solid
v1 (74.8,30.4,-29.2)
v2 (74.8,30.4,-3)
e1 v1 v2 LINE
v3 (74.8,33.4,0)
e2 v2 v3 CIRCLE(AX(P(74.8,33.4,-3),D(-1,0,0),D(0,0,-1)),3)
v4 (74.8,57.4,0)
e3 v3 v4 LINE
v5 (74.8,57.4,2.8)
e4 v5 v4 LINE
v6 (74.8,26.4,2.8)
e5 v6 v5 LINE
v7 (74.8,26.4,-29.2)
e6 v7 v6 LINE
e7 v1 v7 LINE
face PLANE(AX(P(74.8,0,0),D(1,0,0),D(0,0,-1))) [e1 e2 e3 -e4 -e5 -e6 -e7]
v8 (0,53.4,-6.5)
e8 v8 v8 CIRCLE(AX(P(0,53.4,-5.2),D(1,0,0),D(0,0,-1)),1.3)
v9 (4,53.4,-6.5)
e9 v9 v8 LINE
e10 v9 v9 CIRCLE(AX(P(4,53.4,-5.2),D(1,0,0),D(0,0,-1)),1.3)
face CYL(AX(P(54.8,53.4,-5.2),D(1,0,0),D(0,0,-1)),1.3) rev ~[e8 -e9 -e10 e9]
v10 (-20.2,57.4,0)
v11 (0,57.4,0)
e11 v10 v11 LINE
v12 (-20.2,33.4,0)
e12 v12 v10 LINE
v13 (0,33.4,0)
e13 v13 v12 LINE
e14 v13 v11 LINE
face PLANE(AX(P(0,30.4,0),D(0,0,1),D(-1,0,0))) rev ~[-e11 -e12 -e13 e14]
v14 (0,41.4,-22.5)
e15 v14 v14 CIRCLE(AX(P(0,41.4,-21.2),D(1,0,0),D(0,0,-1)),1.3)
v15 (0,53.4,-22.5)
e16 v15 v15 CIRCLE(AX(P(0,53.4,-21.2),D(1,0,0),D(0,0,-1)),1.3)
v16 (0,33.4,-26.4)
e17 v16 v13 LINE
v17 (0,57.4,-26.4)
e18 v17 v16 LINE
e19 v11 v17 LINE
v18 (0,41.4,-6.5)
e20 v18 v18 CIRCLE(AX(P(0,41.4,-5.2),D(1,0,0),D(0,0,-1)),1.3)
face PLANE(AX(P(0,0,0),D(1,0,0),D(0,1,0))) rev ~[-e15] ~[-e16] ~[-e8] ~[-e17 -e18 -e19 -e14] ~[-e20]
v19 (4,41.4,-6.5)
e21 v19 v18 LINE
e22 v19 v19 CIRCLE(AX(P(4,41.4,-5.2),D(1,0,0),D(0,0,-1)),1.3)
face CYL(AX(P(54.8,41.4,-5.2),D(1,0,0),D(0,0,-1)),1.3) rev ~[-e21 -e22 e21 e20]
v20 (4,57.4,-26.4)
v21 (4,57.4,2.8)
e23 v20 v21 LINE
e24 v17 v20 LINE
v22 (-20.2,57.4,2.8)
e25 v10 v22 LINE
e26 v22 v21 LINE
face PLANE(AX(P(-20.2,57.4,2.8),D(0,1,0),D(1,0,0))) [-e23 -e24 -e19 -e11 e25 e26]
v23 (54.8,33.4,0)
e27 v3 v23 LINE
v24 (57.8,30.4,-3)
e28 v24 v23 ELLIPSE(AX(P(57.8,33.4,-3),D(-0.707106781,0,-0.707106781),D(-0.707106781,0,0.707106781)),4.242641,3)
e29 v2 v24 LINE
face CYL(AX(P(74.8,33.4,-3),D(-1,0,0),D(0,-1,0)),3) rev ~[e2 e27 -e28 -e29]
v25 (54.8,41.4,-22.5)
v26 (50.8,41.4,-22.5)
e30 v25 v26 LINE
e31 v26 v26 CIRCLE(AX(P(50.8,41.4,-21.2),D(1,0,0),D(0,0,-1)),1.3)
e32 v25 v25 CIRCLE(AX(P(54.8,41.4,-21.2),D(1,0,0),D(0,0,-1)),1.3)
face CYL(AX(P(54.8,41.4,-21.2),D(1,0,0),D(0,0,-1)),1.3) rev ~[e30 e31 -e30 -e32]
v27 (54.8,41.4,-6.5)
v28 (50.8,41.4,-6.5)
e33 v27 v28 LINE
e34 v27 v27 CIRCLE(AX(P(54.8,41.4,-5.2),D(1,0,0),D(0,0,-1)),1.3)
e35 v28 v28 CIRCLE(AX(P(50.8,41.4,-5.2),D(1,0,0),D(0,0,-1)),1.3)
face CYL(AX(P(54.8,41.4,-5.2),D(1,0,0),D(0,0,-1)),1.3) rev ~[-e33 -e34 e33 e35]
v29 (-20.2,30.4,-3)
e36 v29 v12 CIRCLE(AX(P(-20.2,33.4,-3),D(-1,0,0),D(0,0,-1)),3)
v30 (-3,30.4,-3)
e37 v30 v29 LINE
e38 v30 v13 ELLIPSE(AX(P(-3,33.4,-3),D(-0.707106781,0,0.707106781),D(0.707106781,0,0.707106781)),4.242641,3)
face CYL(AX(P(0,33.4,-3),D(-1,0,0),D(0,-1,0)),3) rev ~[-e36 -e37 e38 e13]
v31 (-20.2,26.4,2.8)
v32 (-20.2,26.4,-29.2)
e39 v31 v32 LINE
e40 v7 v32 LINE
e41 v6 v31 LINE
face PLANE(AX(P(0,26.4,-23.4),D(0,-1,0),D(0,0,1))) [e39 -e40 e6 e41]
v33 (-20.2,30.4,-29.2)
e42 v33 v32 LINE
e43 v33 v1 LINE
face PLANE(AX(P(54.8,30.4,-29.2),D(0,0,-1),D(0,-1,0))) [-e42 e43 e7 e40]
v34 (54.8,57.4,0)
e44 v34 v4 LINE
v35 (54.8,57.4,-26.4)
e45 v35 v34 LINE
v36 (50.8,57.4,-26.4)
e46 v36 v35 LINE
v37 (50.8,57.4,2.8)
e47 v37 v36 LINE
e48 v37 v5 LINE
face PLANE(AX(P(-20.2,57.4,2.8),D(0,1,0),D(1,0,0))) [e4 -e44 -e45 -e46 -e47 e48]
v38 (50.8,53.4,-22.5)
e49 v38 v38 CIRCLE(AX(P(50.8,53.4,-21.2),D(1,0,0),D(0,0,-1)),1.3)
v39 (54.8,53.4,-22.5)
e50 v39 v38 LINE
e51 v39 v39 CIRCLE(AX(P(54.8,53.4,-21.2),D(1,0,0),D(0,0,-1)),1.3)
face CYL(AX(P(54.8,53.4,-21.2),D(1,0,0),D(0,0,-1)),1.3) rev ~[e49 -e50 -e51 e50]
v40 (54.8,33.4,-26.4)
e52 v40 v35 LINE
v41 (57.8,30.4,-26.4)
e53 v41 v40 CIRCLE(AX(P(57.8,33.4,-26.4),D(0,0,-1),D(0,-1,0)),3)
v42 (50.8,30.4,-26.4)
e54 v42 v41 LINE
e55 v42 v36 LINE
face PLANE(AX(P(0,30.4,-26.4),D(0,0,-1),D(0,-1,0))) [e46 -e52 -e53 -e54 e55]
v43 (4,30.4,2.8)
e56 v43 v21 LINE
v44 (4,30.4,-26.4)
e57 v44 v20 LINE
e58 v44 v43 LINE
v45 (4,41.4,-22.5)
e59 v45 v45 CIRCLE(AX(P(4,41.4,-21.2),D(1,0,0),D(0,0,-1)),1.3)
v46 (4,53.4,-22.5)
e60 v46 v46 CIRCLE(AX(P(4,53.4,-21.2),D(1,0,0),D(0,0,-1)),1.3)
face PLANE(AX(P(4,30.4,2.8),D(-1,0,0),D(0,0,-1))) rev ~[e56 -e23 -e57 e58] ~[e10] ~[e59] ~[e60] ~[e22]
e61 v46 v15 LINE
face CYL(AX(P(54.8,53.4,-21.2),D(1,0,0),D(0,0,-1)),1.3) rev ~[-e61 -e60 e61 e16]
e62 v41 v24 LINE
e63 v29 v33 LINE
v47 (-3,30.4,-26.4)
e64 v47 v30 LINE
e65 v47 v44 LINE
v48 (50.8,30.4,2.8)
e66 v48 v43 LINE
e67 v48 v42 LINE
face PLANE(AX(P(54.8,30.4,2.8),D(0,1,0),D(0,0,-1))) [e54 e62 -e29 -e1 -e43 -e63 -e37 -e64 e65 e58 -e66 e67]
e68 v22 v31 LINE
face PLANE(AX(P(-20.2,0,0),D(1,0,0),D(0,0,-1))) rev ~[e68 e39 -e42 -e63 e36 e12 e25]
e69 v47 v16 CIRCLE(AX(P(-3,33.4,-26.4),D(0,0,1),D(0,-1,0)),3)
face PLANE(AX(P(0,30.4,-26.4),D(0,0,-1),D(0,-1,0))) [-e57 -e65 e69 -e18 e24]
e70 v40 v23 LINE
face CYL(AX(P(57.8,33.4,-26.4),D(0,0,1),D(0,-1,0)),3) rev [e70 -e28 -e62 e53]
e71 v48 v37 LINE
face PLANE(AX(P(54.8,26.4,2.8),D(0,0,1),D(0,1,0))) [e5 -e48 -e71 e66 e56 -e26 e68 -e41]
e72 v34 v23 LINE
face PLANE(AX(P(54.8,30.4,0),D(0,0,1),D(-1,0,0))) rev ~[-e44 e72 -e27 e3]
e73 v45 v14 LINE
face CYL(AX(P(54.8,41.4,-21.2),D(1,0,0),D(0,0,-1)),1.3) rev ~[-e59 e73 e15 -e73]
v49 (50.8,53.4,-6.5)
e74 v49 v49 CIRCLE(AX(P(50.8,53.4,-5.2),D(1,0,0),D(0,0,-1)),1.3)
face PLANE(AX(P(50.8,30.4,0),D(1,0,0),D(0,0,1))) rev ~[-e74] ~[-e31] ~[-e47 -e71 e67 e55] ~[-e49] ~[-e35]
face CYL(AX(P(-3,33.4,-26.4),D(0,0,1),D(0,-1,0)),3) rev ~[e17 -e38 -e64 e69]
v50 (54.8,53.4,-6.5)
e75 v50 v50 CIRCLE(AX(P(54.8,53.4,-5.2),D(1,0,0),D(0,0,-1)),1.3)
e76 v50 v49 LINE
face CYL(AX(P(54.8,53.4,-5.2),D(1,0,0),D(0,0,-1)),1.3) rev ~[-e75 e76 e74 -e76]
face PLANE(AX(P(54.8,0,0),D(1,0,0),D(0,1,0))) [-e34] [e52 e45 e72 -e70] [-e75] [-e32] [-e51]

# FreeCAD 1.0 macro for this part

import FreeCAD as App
import Part
import Sketcher
from FreeCAD import Vector


def edges_at(feature, points):
    """Names of the edges that pass closest to the given points."""
    edges = feature.Shape.Edges
    near = lambda p: min(range(len(edges)), key=lambda i: edges[i].distToShape(Part.Vertex(*p))[0])
    return sorted({f"Edge{near(p) + 1}" for p in points})


def add_polygon(sketch, points):
    """Adds a closed chain of lines whose ends are joined by coincident constraints."""
    first, n = sketch.GeometryCount, len(points)
    for a, b in zip(points, points[1:] + points[:1]):
        sketch.addGeometry(Part.LineSegment(App.Vector(*a, 0), App.Vector(*b, 0)), False)
    for i in range(n):
        sketch.addConstraint(Sketcher.Constraint("Coincident", first + i, 2, first + (i + 1) % n, 1))

doc = App.newDocument("Part")
body = doc.addObject("PartDesign::Body", "Body")

sketch1 = body.newObject("Sketcher::SketchObject", "Sketch")
sketch1.AttachmentSupport = (doc.getObject("YZ_Plane"), [""])
sketch1.MapMode = "FlatFace"
add_polygon(sketch1, [(6, -3), (26, -3), (26, -23), (6, -23), (6, -15), (0, -15), (0, -26), (30, -26), (30, 0), (0, 0), (0, -11), (6, -11)])
sketch1.addConstraint(Sketcher.Constraint("Horizontal", 0))
sketch1.addConstraint(Sketcher.Constraint("Vertical", 1))
sketch1.addConstraint(Sketcher.Constraint("Horizontal", 2))
sketch1.addConstraint(Sketcher.Constraint("Vertical", 3))
sketch1.addConstraint(Sketcher.Constraint("Horizontal", 4))
sketch1.addConstraint(Sketcher.Constraint("Vertical", 5))
sketch1.addConstraint(Sketcher.Constraint("Horizontal", 6))
sketch1.addConstraint(Sketcher.Constraint("Vertical", 7))
sketch1.addConstraint(Sketcher.Constraint("Horizontal", 8))
sketch1.addConstraint(Sketcher.Constraint("Vertical", 9))
sketch1.addConstraint(Sketcher.Constraint("Horizontal", 10))
sketch1.addConstraint(Sketcher.Constraint("Vertical", 11))
sketch1.addConstraint(Sketcher.Constraint("Coincident", 8, 2, -1, 1))
sketch1.addConstraint(Sketcher.Constraint("PointOnObject", 4, 2, -2))
sketch1.addConstraint(Sketcher.Constraint("Vertical", 3, 2, 10, 2))
sketch1.addConstraint(Sketcher.Constraint("Equal", 2, 1))
sketch1.addConstraint(Sketcher.Constraint("Equal", 5, 9))
sketch1.addConstraint(Sketcher.Constraint("Equal", 3, 11))
sketch1.addConstraint(Sketcher.Constraint("DistanceX", 4, 2, 4, 1, 6.0))
sketch1.addConstraint(Sketcher.Constraint("DistanceY", 3, 1, 3, 2, 8.0))
sketch1.addConstraint(Sketcher.Constraint("DistanceX", 0, 1, 0, 2, 20.4))
sketch1.addConstraint(Sketcher.Constraint("DistanceY", 0, 2, -1, 1, 3.0))
sketch1.addConstraint(Sketcher.Constraint("DistanceX", 1, 2, 6, 2, 4.0))
pad1 = body.newObject("PartDesign::Pad", "Pad")
pad1.Profile = sketch1
pad1.Length = 54.8

sketch2 = body.newObject("Sketcher::SketchObject", "Sketch001")
sketch2.AttachmentSupport = (doc.getObject("XZ_Plane"), [""])
sketch2.MapMode = "FlatFace"
sketch2.AttachmentOffset = App.Placement(Vector(0, 0, -30.4), App.Rotation())
add_polygon(sketch2, [(0, -26.4), (0, 0), (4, 0), (4, -26.4)])
add_polygon(sketch2, [(50.8, -26.4), (50.8, 0), (54.8, 0), (54.8, -26.4)])
sketch2.addConstraint(Sketcher.Constraint("Vertical", 0))
sketch2.addConstraint(Sketcher.Constraint("Horizontal", 1))
sketch2.addConstraint(Sketcher.Constraint("Vertical", 2))
sketch2.addConstraint(Sketcher.Constraint("Horizontal", 3))
sketch2.addConstraint(Sketcher.Constraint("Vertical", 4))
sketch2.addConstraint(Sketcher.Constraint("Horizontal", 5))
sketch2.addConstraint(Sketcher.Constraint("Vertical", 6))
sketch2.addConstraint(Sketcher.Constraint("Horizontal", 7))
sketch2.addConstraint(Sketcher.Constraint("Coincident", 0, 2, -1, 1))
sketch2.addConstraint(Sketcher.Constraint("PointOnObject", 4, 2, -1))
sketch2.addConstraint(Sketcher.Constraint("Horizontal", 3, 2, 6, 2))
sketch2.addConstraint(Sketcher.Constraint("Equal", 3, 5))
sketch2.addConstraint(Sketcher.Constraint("DistanceX", 1, 1, 1, 2, 4.0))
sketch2.addConstraint(Sketcher.Constraint("DistanceX", 1, 2, 4, 2, 46.8))
sketch2.addConstraint(Sketcher.Constraint("DistanceY", 0, 1, 0, 2, 26.4))
pad2 = body.newObject("PartDesign::Pad", "Pad001")
pad2.Profile = sketch2
pad2.Length = 27
pad2.Reversed = True

sketch3 = body.newObject("Sketcher::SketchObject", "Sketch002")
sketch3.AttachmentSupport = (doc.getObject("YZ_Plane"), [""])
sketch3.MapMode = "FlatFace"
sketch3.AttachmentOffset = App.Placement(Vector(0, 0, 54.8), App.Rotation())
sketch3.addGeometry(Part.Circle(Vector(41.4, -5.2, 0), Vector(0, 0, 1), 1.3), False)
sketch3.addGeometry(Part.Circle(Vector(53.4, -5.2, 0), Vector(0, 0, 1), 1.3), False)
sketch3.addGeometry(Part.Circle(Vector(53.4, -21.2, 0), Vector(0, 0, 1), 1.3), False)
sketch3.addGeometry(Part.Circle(Vector(41.4, -21.2, 0), Vector(0, 0, 1), 1.3), False)
sketch3.addConstraint(Sketcher.Constraint("Equal", 0, 1))
sketch3.addConstraint(Sketcher.Constraint("Equal", 1, 2))
sketch3.addConstraint(Sketcher.Constraint("Equal", 2, 3))
sketch3.addConstraint(Sketcher.Constraint("Horizontal", 0, 3, 1, 3))
sketch3.addConstraint(Sketcher.Constraint("Horizontal", 2, 3, 3, 3))
sketch3.addConstraint(Sketcher.Constraint("Vertical", 1, 3, 2, 3))
sketch3.addConstraint(Sketcher.Constraint("Vertical", 0, 3, 3, 3))
sketch3.addConstraint(Sketcher.Constraint("Diameter", 0, 2.6))
sketch3.addConstraint(Sketcher.Constraint("DistanceY", 2, 3, 1, 3, 16.0))
sketch3.addConstraint(Sketcher.Constraint("DistanceY", 0, 3, -1, 1, 5.2))
sketch3.addConstraint(Sketcher.Constraint("DistanceX", 0, 3, 1, 3, 12.0))
sketch3.addConstraint(Sketcher.Constraint("DistanceX", -1, 1, 0, 3, 41.4))
pocket1 = body.newObject("PartDesign::Pocket", "Pocket")
pocket1.Profile = sketch3
pocket1.Length = 100

sketch4 = body.newObject("Sketcher::SketchObject", "Sketch003")
sketch4.AttachmentSupport = (doc.getObject("YZ_Plane"), [""])
sketch4.MapMode = "FlatFace"
sketch4.AttachmentOffset = App.Placement(Vector(0, 0, 54.8), App.Rotation())
add_polygon(sketch4, [(26.4, 2.8), (26.4, -29.2), (30.4, -29.2), (30.4, 2.8)])
sketch4.addConstraint(Sketcher.Constraint("Vertical", 0))
sketch4.addConstraint(Sketcher.Constraint("Horizontal", 1))
sketch4.addConstraint(Sketcher.Constraint("Vertical", 2))
sketch4.addConstraint(Sketcher.Constraint("Horizontal", 3))
sketch4.addConstraint(Sketcher.Constraint("DistanceY", 0, 2, 0, 1, 32.0))
sketch4.addConstraint(Sketcher.Constraint("DistanceX", 1, 1, 1, 2, 4.0))
sketch4.addConstraint(Sketcher.Constraint("DistanceX", -1, 1, 0, 2, 26.4))
sketch4.addConstraint(Sketcher.Constraint("DistanceY", 0, 2, -1, 1, 29.2))
pad3 = body.newObject("PartDesign::Pad", "Pad002")
pad3.Profile = sketch4
pad3.Type = "TwoLengths"
pad3.Length = 20
pad3.Length2 = 75

sketch5 = body.newObject("Sketcher::SketchObject", "Sketch004")
sketch5.AttachmentSupport = (doc.getObject("XZ_Plane"), [""])
sketch5.MapMode = "FlatFace"
sketch5.AttachmentOffset = App.Placement(Vector(0, 0, -30.4), App.Rotation())
add_polygon(sketch5, [(4, 0), (-20.2, 0), (-20.2, 2.8), (4, 2.8)])
add_polygon(sketch5, [(50.8, 0), (50.8, 2.8), (74.8, 2.8), (74.8, 0)])
sketch5.addConstraint(Sketcher.Constraint("Horizontal", 0))
sketch5.addConstraint(Sketcher.Constraint("Vertical", 1))
sketch5.addConstraint(Sketcher.Constraint("Horizontal", 2))
sketch5.addConstraint(Sketcher.Constraint("Vertical", 3))
sketch5.addConstraint(Sketcher.Constraint("Vertical", 4))
sketch5.addConstraint(Sketcher.Constraint("Horizontal", 5))
sketch5.addConstraint(Sketcher.Constraint("Vertical", 6))
sketch5.addConstraint(Sketcher.Constraint("Horizontal", 7))
sketch5.addConstraint(Sketcher.Constraint("PointOnObject", 0, 2, -1))
sketch5.addConstraint(Sketcher.Constraint("PointOnObject", 6, 2, -1))
sketch5.addConstraint(Sketcher.Constraint("Horizontal", 2, 2, 4, 2))
sketch5.addConstraint(Sketcher.Constraint("DistanceX", 5, 1, 5, 2, 24.0))
sketch5.addConstraint(Sketcher.Constraint("DistanceX", 0, 2, 0, 1, 24.2))
sketch5.addConstraint(Sketcher.Constraint("DistanceY", 1, 1, 1, 2, 2.8))
sketch5.addConstraint(Sketcher.Constraint("DistanceX", -1, 1, 2, 2, 4.0))
sketch5.addConstraint(Sketcher.Constraint("DistanceX", 1, 2, 4, 2, 71.0))
pad4 = body.newObject("PartDesign::Pad", "Pad003")
pad4.Profile = sketch5
pad4.Length = 27
pad4.Reversed = True
doc.recompute()

fillet = body.newObject("PartDesign::Fillet", "Fillet")
fillet.Base = (pad4, edges_at(pad4, [
    (54.8, 30.4, -13.2),
    (64.8, 30.4, 0),
    (0, 30.4, -13.2),
    (-10.1, 30.4, 0),
]))
fillet.Radius = 3

sketch6 = body.newObject("Sketcher::SketchObject", "Sketch005")
sketch6.AttachmentSupport = (doc.getObject("YZ_Plane"), [""])
sketch6.MapMode = "FlatFace"
sketch6.AttachmentOffset = App.Placement(Vector(0, 0, 54.8), App.Rotation())
add_polygon(sketch6, [(26, -47), (26, 14), (-5, 14), (-5, -47)])
sketch6.addConstraint(Sketcher.Constraint("Vertical", 0))
sketch6.addConstraint(Sketcher.Constraint("Horizontal", 1))
sketch6.addConstraint(Sketcher.Constraint("Vertical", 2))
sketch6.addConstraint(Sketcher.Constraint("Horizontal", 3))
sketch6.addConstraint(Sketcher.Constraint("DistanceX", -1, 1, 0, 2, 26.4))
sketch6.addConstraint(Sketcher.Constraint("DistanceX", 1, 2, 1, 1, 31.3204))
sketch6.addConstraint(Sketcher.Constraint("DistanceY", 0, 1, 0, 2, 61.6222))
sketch6.addConstraint(Sketcher.Constraint("DistanceY", -1, 1, 0, 2, 14.3714))
pocket2 = body.newObject("PartDesign::Pocket", "Pocket001")
pocket2.Profile = sketch6
pocket2.Length = 100

doc.recompute()
